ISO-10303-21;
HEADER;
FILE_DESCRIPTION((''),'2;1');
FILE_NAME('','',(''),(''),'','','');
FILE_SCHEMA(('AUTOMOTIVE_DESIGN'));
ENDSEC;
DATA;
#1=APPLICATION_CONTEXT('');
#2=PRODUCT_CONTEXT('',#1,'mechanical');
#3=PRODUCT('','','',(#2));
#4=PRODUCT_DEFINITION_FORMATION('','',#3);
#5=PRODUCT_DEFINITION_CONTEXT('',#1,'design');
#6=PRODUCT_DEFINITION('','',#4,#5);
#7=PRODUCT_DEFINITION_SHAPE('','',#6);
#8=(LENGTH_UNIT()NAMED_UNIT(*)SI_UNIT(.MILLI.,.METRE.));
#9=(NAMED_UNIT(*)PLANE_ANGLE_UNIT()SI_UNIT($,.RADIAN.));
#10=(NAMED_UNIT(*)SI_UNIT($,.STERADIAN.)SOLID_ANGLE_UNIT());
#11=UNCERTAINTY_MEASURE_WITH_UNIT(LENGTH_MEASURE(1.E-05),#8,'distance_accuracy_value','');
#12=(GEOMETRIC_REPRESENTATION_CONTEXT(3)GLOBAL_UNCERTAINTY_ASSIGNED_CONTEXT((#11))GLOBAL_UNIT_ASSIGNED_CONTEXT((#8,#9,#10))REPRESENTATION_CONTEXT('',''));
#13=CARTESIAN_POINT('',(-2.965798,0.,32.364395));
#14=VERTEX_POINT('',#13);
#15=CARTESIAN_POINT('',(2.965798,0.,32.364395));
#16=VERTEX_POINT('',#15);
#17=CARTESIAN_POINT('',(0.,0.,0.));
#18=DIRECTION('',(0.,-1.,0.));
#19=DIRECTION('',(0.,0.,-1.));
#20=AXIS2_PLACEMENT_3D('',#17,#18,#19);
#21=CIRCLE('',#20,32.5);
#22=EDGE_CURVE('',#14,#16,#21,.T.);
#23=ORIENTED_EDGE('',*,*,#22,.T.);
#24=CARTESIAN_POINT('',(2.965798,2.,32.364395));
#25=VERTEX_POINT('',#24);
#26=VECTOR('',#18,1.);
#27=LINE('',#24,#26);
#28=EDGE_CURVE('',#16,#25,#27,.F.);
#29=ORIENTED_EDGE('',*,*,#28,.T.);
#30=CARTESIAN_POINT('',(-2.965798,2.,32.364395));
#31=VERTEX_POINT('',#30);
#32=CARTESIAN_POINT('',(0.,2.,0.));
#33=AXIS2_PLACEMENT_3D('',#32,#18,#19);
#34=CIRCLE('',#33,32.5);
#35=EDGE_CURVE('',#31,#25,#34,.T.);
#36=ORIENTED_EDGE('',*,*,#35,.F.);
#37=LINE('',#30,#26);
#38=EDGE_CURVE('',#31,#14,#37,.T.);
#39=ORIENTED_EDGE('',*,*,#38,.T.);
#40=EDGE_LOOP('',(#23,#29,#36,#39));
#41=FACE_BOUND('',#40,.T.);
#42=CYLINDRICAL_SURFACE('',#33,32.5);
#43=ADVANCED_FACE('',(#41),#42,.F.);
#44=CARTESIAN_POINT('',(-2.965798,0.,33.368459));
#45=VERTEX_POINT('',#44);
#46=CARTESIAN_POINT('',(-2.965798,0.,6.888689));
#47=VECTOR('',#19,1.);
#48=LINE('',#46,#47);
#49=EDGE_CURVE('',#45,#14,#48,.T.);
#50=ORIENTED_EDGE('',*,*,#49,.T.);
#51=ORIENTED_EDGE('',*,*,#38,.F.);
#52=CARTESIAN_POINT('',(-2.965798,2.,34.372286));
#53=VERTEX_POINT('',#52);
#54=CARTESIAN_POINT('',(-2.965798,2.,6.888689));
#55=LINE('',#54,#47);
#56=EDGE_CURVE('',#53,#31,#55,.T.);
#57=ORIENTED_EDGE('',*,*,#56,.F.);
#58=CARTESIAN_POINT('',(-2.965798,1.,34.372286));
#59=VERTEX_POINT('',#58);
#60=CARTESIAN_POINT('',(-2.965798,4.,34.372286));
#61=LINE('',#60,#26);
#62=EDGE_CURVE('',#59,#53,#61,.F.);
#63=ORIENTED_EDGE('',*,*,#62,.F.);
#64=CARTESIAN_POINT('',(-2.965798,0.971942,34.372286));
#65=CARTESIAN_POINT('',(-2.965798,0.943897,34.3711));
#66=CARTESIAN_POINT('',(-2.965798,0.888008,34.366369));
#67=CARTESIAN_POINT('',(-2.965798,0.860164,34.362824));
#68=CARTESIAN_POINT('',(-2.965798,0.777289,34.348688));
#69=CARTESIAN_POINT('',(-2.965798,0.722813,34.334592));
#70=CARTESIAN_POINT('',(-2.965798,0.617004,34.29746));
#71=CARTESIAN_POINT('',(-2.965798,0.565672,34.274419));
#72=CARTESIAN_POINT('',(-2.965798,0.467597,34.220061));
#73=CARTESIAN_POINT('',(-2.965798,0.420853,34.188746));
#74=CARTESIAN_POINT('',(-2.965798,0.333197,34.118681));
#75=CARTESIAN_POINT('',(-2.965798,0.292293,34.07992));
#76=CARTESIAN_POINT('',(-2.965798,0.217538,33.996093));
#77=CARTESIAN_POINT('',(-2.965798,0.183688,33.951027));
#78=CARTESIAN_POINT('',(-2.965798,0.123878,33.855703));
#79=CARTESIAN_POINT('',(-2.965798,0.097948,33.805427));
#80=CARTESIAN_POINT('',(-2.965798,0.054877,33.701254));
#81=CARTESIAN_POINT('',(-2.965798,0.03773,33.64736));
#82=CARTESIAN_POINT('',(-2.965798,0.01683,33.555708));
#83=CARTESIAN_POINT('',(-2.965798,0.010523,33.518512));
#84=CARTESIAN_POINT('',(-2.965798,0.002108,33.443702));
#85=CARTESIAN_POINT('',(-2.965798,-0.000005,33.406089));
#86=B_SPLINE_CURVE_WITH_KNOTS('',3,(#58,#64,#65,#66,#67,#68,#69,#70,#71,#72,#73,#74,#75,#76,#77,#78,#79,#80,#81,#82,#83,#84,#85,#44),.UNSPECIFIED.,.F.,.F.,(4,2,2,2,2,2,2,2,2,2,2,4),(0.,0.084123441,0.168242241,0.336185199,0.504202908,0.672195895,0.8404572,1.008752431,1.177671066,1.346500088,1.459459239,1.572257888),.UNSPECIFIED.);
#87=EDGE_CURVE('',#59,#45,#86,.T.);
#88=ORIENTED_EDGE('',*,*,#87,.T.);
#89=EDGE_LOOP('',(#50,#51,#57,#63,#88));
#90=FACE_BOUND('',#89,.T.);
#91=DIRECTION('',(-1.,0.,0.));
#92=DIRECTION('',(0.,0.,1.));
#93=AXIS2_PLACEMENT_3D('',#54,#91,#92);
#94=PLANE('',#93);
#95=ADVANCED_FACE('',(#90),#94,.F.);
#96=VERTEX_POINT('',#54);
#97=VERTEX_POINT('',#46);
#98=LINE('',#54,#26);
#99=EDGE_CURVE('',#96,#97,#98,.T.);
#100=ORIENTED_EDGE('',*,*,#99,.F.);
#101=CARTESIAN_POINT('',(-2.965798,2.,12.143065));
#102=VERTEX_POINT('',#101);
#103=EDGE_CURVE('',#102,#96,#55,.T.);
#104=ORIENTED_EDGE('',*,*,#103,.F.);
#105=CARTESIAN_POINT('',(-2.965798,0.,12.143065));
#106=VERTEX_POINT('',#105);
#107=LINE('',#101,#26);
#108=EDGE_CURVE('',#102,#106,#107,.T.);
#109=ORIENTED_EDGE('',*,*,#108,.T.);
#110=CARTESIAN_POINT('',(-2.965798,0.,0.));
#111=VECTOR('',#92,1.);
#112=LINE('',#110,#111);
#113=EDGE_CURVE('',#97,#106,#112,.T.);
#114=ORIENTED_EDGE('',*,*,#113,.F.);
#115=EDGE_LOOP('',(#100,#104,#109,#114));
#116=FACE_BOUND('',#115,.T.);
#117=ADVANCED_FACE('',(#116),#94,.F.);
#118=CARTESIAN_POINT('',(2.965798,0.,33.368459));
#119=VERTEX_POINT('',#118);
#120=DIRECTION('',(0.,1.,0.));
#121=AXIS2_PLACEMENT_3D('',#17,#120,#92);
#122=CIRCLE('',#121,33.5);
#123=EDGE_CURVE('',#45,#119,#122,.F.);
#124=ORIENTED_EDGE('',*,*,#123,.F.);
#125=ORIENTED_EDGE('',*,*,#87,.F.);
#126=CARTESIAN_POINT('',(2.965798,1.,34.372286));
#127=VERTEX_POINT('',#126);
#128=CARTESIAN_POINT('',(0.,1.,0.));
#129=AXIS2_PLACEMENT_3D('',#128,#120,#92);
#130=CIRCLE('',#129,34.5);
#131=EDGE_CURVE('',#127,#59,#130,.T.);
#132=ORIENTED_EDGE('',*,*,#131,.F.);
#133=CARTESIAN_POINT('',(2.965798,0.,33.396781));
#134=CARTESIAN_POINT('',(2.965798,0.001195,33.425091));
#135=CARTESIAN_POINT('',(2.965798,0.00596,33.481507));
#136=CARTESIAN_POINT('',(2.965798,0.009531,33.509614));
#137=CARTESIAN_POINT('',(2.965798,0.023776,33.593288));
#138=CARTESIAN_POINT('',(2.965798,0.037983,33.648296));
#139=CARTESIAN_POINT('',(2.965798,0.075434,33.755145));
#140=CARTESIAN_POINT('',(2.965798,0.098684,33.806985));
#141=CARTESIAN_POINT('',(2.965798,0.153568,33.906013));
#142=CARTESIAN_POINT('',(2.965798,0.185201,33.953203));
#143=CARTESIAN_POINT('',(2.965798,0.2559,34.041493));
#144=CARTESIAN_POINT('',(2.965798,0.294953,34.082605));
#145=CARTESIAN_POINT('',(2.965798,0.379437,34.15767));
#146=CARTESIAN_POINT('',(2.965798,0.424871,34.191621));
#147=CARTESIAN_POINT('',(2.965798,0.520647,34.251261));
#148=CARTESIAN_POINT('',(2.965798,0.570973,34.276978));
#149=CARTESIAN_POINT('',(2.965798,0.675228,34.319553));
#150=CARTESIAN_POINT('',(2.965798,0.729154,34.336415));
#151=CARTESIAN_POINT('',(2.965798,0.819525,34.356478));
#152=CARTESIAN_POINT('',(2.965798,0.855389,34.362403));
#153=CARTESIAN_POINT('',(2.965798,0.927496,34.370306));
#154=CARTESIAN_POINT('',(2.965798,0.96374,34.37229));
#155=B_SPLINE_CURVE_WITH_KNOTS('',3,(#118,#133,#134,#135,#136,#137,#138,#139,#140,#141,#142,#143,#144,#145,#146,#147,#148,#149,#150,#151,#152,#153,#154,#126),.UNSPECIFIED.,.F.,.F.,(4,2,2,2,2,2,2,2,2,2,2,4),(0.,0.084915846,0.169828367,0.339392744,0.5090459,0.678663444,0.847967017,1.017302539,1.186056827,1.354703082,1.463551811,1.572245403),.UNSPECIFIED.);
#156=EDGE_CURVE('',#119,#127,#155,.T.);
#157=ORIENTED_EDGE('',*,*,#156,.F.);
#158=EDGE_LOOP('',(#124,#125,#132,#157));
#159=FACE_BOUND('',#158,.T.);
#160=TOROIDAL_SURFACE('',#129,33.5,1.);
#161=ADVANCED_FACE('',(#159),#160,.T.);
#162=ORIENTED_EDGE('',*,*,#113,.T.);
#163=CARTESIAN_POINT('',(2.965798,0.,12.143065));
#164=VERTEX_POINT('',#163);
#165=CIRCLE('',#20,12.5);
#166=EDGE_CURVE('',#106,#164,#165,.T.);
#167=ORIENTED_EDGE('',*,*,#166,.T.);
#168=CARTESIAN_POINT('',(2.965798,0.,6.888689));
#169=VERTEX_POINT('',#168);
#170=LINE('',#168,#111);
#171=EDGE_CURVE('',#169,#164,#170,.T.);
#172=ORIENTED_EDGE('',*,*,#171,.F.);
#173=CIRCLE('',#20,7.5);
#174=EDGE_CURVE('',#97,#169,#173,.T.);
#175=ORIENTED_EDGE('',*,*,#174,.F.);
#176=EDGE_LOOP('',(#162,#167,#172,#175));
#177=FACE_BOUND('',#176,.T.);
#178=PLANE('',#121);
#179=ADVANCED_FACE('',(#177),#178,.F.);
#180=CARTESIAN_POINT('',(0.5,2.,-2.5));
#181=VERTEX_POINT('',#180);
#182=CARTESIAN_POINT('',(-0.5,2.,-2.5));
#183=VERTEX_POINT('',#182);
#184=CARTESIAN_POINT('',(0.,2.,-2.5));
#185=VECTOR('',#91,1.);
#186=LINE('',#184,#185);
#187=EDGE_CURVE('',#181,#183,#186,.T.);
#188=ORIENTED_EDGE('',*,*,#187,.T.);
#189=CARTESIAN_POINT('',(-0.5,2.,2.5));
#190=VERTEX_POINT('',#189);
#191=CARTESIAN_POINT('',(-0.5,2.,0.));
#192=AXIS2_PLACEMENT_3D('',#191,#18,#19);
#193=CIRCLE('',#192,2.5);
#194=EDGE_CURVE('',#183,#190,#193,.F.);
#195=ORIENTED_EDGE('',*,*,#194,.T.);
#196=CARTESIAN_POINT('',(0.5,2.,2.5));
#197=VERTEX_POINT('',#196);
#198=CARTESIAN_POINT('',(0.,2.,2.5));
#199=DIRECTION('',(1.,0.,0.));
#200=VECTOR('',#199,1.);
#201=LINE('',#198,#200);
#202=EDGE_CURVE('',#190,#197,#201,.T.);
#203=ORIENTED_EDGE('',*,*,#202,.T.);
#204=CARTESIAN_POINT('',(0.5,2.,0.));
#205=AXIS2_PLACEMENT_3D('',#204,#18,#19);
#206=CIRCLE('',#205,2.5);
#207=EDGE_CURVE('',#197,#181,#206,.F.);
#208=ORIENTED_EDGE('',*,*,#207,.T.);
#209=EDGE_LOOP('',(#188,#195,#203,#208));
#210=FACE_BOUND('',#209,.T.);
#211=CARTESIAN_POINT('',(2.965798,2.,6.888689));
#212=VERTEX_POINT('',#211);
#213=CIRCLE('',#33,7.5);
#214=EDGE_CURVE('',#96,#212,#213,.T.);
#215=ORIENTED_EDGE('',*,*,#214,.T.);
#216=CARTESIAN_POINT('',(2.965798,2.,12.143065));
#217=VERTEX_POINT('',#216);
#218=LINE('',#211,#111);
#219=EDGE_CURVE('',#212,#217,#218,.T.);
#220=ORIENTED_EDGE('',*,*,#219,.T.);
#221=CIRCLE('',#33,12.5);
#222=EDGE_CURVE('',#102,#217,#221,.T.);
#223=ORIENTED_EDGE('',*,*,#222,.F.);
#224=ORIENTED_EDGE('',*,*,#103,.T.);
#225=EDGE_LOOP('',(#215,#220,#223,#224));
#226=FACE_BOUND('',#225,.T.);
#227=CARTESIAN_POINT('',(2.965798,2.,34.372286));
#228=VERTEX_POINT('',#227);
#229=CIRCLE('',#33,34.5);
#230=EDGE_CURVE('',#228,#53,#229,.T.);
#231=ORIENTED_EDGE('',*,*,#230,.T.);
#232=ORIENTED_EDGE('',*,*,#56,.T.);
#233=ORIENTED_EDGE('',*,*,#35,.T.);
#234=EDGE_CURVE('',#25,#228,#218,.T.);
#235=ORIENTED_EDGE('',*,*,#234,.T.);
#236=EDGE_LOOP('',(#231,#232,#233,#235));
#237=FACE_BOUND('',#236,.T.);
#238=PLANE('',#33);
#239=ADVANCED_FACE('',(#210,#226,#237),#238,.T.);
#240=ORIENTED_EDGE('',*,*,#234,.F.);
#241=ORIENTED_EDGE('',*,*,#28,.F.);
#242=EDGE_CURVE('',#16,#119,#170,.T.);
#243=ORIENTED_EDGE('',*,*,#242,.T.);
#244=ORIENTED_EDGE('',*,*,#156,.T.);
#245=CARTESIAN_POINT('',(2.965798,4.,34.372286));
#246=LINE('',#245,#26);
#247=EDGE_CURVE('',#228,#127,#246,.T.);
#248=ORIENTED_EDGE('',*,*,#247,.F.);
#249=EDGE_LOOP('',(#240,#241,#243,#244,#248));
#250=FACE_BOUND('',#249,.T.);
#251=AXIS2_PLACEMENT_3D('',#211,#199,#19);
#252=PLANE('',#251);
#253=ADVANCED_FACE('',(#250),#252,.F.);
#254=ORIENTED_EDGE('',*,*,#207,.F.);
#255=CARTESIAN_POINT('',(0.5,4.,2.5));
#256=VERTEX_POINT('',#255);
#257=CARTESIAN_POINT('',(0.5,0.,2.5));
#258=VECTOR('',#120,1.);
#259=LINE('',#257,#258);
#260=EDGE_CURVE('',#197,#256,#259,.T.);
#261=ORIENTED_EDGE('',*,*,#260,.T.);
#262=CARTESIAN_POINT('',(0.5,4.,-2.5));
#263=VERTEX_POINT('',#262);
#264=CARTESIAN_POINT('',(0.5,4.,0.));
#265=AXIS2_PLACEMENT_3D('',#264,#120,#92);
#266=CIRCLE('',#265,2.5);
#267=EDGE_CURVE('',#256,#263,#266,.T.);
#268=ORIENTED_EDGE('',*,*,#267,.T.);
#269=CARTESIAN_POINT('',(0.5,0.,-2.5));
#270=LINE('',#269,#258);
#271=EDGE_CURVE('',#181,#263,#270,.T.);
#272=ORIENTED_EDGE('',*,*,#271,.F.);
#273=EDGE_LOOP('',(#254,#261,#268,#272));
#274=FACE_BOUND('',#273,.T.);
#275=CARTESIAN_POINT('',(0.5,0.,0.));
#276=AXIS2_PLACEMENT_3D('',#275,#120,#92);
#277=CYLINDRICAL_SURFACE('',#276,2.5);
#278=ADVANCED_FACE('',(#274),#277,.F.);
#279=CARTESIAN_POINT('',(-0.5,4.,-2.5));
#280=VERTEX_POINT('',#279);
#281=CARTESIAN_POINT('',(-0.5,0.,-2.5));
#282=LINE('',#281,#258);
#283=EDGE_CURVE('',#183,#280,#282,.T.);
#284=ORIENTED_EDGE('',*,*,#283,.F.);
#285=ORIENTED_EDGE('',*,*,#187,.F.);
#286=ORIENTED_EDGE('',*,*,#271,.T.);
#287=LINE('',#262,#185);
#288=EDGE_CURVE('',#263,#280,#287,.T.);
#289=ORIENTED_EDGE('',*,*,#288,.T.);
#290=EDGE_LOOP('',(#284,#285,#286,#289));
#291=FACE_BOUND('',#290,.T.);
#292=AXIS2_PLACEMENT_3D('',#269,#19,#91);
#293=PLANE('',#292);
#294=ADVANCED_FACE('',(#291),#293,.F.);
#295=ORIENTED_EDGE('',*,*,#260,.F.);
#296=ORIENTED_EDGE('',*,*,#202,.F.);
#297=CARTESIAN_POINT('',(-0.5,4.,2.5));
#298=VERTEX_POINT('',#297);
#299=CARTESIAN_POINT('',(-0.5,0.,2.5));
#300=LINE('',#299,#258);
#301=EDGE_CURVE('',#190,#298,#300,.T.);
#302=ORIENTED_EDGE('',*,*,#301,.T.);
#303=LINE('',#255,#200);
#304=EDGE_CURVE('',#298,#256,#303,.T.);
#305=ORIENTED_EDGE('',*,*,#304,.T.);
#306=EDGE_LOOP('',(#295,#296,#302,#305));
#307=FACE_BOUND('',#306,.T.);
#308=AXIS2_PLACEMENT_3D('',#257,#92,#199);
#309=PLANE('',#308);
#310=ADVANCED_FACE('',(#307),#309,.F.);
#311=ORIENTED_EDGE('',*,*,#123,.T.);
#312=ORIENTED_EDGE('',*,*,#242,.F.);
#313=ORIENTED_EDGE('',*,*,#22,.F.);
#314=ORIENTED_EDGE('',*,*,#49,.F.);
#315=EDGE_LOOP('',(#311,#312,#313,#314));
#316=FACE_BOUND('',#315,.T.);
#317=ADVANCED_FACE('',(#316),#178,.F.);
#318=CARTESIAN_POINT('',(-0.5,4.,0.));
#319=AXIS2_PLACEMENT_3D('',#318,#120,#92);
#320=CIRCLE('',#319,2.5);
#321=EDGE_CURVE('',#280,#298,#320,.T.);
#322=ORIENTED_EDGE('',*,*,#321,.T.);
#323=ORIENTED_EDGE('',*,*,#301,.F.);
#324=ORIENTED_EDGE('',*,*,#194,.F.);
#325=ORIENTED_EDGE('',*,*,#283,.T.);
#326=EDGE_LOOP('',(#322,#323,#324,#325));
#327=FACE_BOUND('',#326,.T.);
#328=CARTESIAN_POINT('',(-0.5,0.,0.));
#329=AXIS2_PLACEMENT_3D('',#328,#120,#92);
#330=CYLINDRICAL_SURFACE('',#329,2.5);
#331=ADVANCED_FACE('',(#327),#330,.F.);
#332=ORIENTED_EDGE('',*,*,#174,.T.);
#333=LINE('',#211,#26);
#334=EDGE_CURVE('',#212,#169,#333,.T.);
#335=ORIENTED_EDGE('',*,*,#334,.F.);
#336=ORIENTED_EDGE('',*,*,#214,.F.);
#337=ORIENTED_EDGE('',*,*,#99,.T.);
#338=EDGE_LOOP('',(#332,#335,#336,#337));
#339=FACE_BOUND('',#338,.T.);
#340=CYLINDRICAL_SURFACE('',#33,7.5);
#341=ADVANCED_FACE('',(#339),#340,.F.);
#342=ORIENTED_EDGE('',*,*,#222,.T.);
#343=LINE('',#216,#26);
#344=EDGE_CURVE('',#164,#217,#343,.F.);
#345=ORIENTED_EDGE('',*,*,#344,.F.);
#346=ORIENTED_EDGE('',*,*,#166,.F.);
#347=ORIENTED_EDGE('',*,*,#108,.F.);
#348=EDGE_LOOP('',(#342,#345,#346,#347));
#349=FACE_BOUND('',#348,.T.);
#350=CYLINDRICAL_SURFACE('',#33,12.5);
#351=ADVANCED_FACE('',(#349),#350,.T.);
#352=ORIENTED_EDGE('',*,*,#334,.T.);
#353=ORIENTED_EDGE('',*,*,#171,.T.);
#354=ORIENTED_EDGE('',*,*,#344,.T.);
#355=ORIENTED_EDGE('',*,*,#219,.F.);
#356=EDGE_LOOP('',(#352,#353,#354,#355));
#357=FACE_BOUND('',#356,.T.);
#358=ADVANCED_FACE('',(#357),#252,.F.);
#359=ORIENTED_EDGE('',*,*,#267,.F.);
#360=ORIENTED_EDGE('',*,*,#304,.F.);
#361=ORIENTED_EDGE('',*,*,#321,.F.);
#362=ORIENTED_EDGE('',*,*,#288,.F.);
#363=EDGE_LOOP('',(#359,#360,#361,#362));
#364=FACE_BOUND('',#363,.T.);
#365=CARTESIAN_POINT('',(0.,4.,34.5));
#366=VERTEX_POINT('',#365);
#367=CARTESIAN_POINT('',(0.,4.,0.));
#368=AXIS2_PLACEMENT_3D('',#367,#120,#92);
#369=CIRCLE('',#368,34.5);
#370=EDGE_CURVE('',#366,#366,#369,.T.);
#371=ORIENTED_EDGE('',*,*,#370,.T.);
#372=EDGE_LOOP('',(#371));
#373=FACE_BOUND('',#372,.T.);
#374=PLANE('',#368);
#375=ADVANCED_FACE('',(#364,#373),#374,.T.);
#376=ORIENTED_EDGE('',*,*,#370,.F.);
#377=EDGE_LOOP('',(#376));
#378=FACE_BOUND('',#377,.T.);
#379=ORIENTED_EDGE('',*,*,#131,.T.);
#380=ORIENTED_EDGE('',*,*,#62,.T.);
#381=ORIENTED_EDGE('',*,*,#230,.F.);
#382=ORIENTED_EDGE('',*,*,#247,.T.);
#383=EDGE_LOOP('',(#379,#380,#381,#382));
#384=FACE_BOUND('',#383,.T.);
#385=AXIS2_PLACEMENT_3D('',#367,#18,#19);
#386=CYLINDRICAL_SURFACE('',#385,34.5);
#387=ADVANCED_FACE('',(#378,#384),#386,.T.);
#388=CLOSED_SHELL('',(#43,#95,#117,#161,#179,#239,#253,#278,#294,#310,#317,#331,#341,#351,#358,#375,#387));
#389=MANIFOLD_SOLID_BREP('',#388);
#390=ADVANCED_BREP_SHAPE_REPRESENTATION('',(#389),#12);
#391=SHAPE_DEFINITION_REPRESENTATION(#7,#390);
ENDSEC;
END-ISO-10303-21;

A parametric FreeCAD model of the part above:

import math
import FreeCAD as App
import Part
import Sketcher

V = App.Vector
Q = App.Units.Quantity


def edges_at(feature, points):
    """Names of the edges that pass closest to the given points."""
    edges = feature.Shape.Edges
    near = lambda p: min(range(len(edges)), key=lambda i: edges[i].distToShape(Part.Vertex(*p))[0])
    return sorted({f"Edge{near(p) + 1}" for p in points})

doc = App.newDocument("Part")
body = doc.addObject("PartDesign::Body", "Body")

# Sketch on XZ plane
sketch1 = doc.addObject("Sketcher::SketchObject", "Sketch")
body.addObject(sketch1)
sketch1.AttachmentSupport = (doc.XZ_Plane, [""])
sketch1.MapMode = "FlatFace"
sketch1.addGeometry(Part.Circle(V(0, 0, 0), V(0, 0, 1), 34), False)
sketch1.addConstraint(Sketcher.Constraint("Coincident", 0, 3, -1, 1))
sketch1.addConstraint(Sketcher.Constraint("Diameter", 0, Q("69 mm")))
pad1 = doc.addObject("PartDesign::Pad", "Pad")
body.addObject(pad1)
pad1.Profile = sketch1
pad1.Length = 4
pad1.Reversed = True

# Sketch on XZ plane
sketch2 = doc.addObject("Sketcher::SketchObject", "Sketch001")
body.addObject(sketch2)
sketch2.AttachmentSupport = (doc.XZ_Plane, [""])
sketch2.MapMode = "FlatFace"
sketch2.AttachmentOffset = App.Placement(V(0, 0, -4), App.Rotation())
sketch2.addGeometry(Part.LineSegment(V(-0.5, 2.5, 0), V(0.5, 2.5, 0)), False)
sketch2.addGeometry(Part.ArcOfCircle(Part.Circle(V(0.5, 0, 0), V(0, 0, 1), 2.5), math.radians(-90), math.radians(90)), False)
sketch2.addGeometry(Part.LineSegment(V(0.5, -2.5, 0), V(-0.5, -2.5, 0)), False)
sketch2.addGeometry(Part.ArcOfCircle(Part.Circle(V(-0.5, 0, 0), V(0, 0, 1), 2.5), math.radians(90), math.radians(270)), False)
sketch2.addConstraint(Sketcher.Constraint("Tangent", 0, 2, 1, 2))
sketch2.addConstraint(Sketcher.Constraint("Tangent", 1, 1, 2, 1))
sketch2.addConstraint(Sketcher.Constraint("Tangent", 2, 2, 3, 2))
sketch2.addConstraint(Sketcher.Constraint("Tangent", 3, 1, 0, 1))
sketch2.addConstraint(Sketcher.Constraint("Horizontal", 0))
sketch2.addConstraint(Sketcher.Constraint("Horizontal", 2))
sketch2.addConstraint(Sketcher.Constraint("Symmetric", 1, 3, 3, 3, -1, 1))
sketch2.addConstraint(Sketcher.Constraint("Radius", 1, Q("2.5 mm")))
sketch2.addConstraint(Sketcher.Constraint("DistanceX", 0, 1, 0, 2, Q("1 mm")))
pocket1 = doc.addObject("PartDesign::Pocket", "Pocket")
body.addObject(pocket1)
pocket1.Profile = sketch2
pocket1.Length = 4
pocket1.Reversed = True

# Sketch on XZ plane
sketch3 = doc.addObject("Sketcher::SketchObject", "Sketch002")
body.addObject(sketch3)
sketch3.AttachmentSupport = (doc.XZ_Plane, [""])
sketch3.MapMode = "FlatFace"
sketch3.addGeometry(Part.Circle(V(0, 0, 0), V(0, 0, 1), 32.5), False)
sketch3.addGeometry(Part.Circle(V(0, 0, 0), V(0, 0, 1), 12.5), False)
sketch3.addGeometry(Part.Circle(V(0, 0, 0), V(0, 0, 1), 7.5), False)
sketch3.addGeometry(Part.LineSegment(V(0.5, -2.5, 0), V(-0.5, -2.5, 0)), False)
sketch3.addGeometry(Part.ArcOfCircle(Part.Circle(V(-0.5, 0, 0), V(0, 0, 1), 2.5), math.radians(90), math.radians(270)), False)
sketch3.addGeometry(Part.LineSegment(V(-0.5, 2.5, 0), V(0.5, 2.5, 0)), False)
sketch3.addGeometry(Part.ArcOfCircle(Part.Circle(V(0.5, 0, 0), V(0, 0, 1), 2.5), math.radians(-90), math.radians(90)), False)
sketch3.addConstraint(Sketcher.Constraint("Tangent", 3, 2, 4, 2))
sketch3.addConstraint(Sketcher.Constraint("Tangent", 4, 1, 5, 1))
sketch3.addConstraint(Sketcher.Constraint("Tangent", 5, 2, 6, 2))
sketch3.addConstraint(Sketcher.Constraint("Tangent", 6, 1, 3, 1))
sketch3.addConstraint(Sketcher.Constraint("Horizontal", 3))
sketch3.addConstraint(Sketcher.Constraint("Horizontal", 5))
sketch3.addConstraint(Sketcher.Constraint("Coincident", 0, 3, -1, 1))
sketch3.addConstraint(Sketcher.Constraint("Coincident", 1, 3, -1, 1))
sketch3.addConstraint(Sketcher.Constraint("Coincident", 2, 3, -1, 1))
sketch3.addConstraint(Sketcher.Constraint("Symmetric", 4, 3, 6, 3, -1, 1))
sketch3.addConstraint(Sketcher.Constraint("Diameter", 0, Q("65 mm")))
sketch3.addConstraint(Sketcher.Constraint("Diameter", 1, Q("25 mm")))
sketch3.addConstraint(Sketcher.Constraint("Diameter", 2, Q("15 mm")))
sketch3.addConstraint(Sketcher.Constraint("Radius", 4, Q("2.5 mm")))
sketch3.addConstraint(Sketcher.Constraint("DistanceX", 3, 2, 3, 1, Q("1 mm")))
pocket2 = doc.addObject("PartDesign::Pocket", "Pocket001")
body.addObject(pocket2)
pocket2.Profile = sketch3
pocket2.Length = 2

# Sketch on XZ plane
sketch4 = doc.addObject("Sketcher::SketchObject", "Sketch003")
body.addObject(sketch4)
sketch4.AttachmentSupport = (doc.XZ_Plane, [""])
sketch4.MapMode = "FlatFace"
sketch4.addGeometry(Part.LineSegment(V(-3, 37, 0), V(-3, 7, 0)), False)
sketch4.addGeometry(Part.LineSegment(V(-3, 7, 0), V(3, 7, 0)), False)
sketch4.addGeometry(Part.LineSegment(V(3, 7, 0), V(3, 37, 0)), False)
sketch4.addGeometry(Part.LineSegment(V(3, 37, 0), V(-3, 37, 0)), False)
sketch4.addConstraint(Sketcher.Constraint("Coincident", 0, 2, 1, 1))
sketch4.addConstraint(Sketcher.Constraint("Coincident", 1, 2, 2, 1))
sketch4.addConstraint(Sketcher.Constraint("Coincident", 2, 2, 3, 1))
sketch4.addConstraint(Sketcher.Constraint("Coincident", 3, 2, 0, 1))
sketch4.addConstraint(Sketcher.Constraint("Vertical", 0))
sketch4.addConstraint(Sketcher.Constraint("Horizontal", 1))
sketch4.addConstraint(Sketcher.Constraint("Vertical", 2))
sketch4.addConstraint(Sketcher.Constraint("Horizontal", 3))
sketch4.addConstraint(Sketcher.Constraint("DistanceX", 0, 2, -1, 1, Q("2.965798 mm")))
sketch4.addConstraint(Sketcher.Constraint("DistanceX", -1, 1, 1, 2, Q("2.965798 mm")))
sketch4.addConstraint(Sketcher.Constraint("DistanceY", 0, 2, 0, 1, Q("30.157363 mm")))
sketch4.addConstraint(Sketcher.Constraint("DistanceY", -1, 1, 0, 2, Q("6.888689 mm")))
pocket3 = doc.addObject("PartDesign::Pocket", "Pocket002")
body.addObject(pocket3)
pocket3.Profile = sketch4
pocket3.Length = 2
doc.recompute()

fillet = doc.addObject("PartDesign::Fillet", "Fillet")
body.addObject(fillet)
fillet.Base = (pocket3, edges_at(pocket3, [(-23.323, 0, -25.422)]))
fillet.Radius = 1

doc.recompute()
